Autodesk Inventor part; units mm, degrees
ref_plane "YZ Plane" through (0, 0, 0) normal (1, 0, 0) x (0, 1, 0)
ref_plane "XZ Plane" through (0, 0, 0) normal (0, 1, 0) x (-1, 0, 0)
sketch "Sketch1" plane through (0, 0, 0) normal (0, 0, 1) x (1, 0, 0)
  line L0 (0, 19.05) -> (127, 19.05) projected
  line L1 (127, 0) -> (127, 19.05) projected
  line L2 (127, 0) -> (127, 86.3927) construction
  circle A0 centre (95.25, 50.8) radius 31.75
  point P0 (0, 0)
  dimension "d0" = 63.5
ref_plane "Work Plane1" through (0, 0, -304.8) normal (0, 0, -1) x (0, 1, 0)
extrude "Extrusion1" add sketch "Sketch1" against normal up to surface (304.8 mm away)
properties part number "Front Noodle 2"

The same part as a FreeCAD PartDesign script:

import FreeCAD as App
import Part
import Sketcher
from FreeCAD import Vector
Q = App.Units.Quantity

doc = App.newDocument("Part")
body = doc.addObject("PartDesign::Body", "Body")

sketch1 = body.newObject("Sketcher::SketchObject", "Sketch")
sketch1.AttachmentSupport = (doc.getObject("XY_Plane"), [""])
sketch1.MapMode = "FlatFace"
sketch1.addGeometry(Part.Circle(Vector(95, 51, 0), Vector(0, 0, 1), 32), False)
sketch1.addConstraint([
    Sketcher.Constraint("Diameter", 0, Q("2.5 in")),
    Sketcher.Constraint("DistanceY", -1, 1, 0, 3, Q("2 in")),
    Sketcher.Constraint("DistanceX", -1, 1, 0, 3, Q("3.75 in")),
])
pad1 = body.newObject("PartDesign::Pad", "Pad")
pad1.Profile = sketch1
pad1.Length = Q("12 in")
pad1.Reversed = True

doc.recompute()
